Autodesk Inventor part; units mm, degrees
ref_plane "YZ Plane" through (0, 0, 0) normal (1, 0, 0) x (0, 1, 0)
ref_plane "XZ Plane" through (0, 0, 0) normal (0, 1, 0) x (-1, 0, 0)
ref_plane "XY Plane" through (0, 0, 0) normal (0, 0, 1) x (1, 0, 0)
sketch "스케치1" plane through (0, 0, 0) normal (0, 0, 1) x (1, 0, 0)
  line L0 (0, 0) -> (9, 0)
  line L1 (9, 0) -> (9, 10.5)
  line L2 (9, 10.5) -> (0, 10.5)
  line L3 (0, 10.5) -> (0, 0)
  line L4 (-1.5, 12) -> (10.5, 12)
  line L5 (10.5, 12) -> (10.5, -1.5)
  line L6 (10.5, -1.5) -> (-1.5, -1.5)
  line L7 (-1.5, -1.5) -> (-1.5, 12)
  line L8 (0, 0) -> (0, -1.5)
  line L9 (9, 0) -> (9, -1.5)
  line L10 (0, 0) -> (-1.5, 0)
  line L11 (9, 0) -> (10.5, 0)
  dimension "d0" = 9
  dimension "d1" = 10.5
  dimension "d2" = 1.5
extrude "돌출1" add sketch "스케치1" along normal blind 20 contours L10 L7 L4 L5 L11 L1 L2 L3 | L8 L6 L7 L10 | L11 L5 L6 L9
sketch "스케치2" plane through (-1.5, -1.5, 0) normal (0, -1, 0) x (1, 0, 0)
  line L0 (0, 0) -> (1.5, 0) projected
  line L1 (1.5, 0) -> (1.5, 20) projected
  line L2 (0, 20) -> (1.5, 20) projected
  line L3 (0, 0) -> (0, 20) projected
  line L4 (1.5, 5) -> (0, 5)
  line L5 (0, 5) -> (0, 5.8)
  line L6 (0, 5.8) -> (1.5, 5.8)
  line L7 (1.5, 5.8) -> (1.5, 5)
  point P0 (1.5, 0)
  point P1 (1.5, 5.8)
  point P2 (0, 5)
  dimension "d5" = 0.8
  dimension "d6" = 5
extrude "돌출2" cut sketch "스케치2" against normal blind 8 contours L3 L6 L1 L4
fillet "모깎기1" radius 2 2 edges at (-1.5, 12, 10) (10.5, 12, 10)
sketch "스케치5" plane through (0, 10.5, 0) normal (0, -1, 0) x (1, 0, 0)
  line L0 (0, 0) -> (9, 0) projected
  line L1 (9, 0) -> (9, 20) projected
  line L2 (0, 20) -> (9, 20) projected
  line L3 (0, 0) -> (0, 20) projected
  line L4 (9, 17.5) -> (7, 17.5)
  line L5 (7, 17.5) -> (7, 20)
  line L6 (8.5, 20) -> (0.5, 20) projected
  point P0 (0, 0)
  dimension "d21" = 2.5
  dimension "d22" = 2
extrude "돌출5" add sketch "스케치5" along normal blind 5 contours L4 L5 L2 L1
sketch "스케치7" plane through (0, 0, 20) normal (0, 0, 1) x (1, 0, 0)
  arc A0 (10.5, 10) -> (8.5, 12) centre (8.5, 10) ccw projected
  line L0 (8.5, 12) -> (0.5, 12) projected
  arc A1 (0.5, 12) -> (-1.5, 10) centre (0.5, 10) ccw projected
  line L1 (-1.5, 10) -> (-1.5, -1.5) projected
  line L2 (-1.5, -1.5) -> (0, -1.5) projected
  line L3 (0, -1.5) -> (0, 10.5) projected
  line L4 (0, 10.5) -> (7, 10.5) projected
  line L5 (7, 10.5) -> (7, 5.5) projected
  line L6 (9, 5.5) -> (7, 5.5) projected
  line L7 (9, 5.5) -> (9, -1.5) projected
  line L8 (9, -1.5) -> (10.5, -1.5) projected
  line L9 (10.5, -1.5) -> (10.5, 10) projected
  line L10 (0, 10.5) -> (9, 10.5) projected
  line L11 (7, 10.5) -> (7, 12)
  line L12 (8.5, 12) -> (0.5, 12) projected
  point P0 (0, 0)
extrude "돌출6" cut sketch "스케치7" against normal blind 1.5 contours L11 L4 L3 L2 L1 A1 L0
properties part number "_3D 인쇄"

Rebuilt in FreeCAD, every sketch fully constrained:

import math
import FreeCAD as App
import Part
import Sketcher
from FreeCAD import Vector
Q = App.Units.Quantity


def edges_at(feature, points):
    """Names of the edges that pass closest to the given points."""
    edges = feature.Shape.Edges
    near = lambda p: min(range(len(edges)), key=lambda i: edges[i].distToShape(Part.Vertex(*p))[0])
    return sorted({f"Edge{near(p) + 1}" for p in points})

doc = App.newDocument("Part")
body = doc.addObject("PartDesign::Body", "Body")

# Sketch on XY plane
sketch1 = body.newObject("Sketcher::SketchObject", "Sketch")
sketch1.AttachmentSupport = (doc.getObject("XY_Plane"), [""])
sketch1.MapMode = "FlatFace"
sketch1.addGeometry([
    Part.LineSegment(Vector(-1.5, 12, 0), Vector(-1.5, -1.5, 0)),  # 0
    Part.LineSegment(Vector(-1.5, -1.5, 0), Vector(0, -1.5, 0)),  # 1
    Part.LineSegment(Vector(0, -1.5, 0), Vector(0, 10.5, 0)),  # 2
    Part.LineSegment(Vector(0, 10.5, 0), Vector(9, 10.5, 0)),  # 3
    Part.LineSegment(Vector(9, 10.5, 0), Vector(9, -1.5, 0)),  # 4
    Part.LineSegment(Vector(9, -1.5, 0), Vector(10.5, -1.5, 0)),  # 5
    Part.LineSegment(Vector(10.5, -1.5, 0), Vector(10.5, 12, 0)),  # 6
    Part.LineSegment(Vector(10.5, 12, 0), Vector(-1.5, 12, 0)),  # 7
], False)
sketch1.addConstraint([
    Sketcher.Constraint("Coincident", 0, 2, 1, 1),
    Sketcher.Constraint("Coincident", 1, 2, 2, 1),
    Sketcher.Constraint("Coincident", 2, 2, 3, 1),
    Sketcher.Constraint("Coincident", 3, 2, 4, 1),
    Sketcher.Constraint("Coincident", 4, 2, 5, 1),
    Sketcher.Constraint("Coincident", 5, 2, 6, 1),
    Sketcher.Constraint("Coincident", 6, 2, 7, 1),
    Sketcher.Constraint("Coincident", 7, 2, 0, 1),
    Sketcher.Constraint("Vertical", 0),
    Sketcher.Constraint("Horizontal", 1),
    Sketcher.Constraint("Vertical", 2),
    Sketcher.Constraint("Horizontal", 3),
    Sketcher.Constraint("Vertical", 4),
    Sketcher.Constraint("Horizontal", 5),
    Sketcher.Constraint("Vertical", 6),
    Sketcher.Constraint("Horizontal", 7),
    Sketcher.Constraint("PointOnObject", 1, 2, -2),
    Sketcher.Constraint("Horizontal", 1, 2, 4, 2),
    Sketcher.Constraint("Equal", 1, 5),
    Sketcher.Constraint("Equal", 7, 2),
    Sketcher.Constraint("DistanceX", 3, 1, 3, 2, Q("9 mm")),
    Sketcher.Constraint("DistanceX", 1, 1, 1, 2, Q("1.5 mm")),
    Sketcher.Constraint("DistanceY", 0, 2, -1, 1, Q("1.5 mm")),
    Sketcher.Constraint("DistanceY", 3, 2, 6, 2, Q("1.5 mm")),
])
pad1 = body.newObject("PartDesign::Pad", "Pad")
pad1.Profile = sketch1
pad1.Length = 20

# Sketch on XZ plane
sketch2 = body.newObject("Sketcher::SketchObject", "Sketch001")
sketch2.AttachmentSupport = (doc.getObject("XZ_Plane"), [""])
sketch2.MapMode = "FlatFace"
sketch2.AttachmentOffset = App.Placement(Vector(0, 0, 1.5), App.Rotation())
sketch2.addGeometry([
    Part.LineSegment(Vector(-1.5, 5.8, 0), Vector(-1.5, 5, 0)),
    Part.LineSegment(Vector(-1.5, 5, 0), Vector(0, 5, 0)),
    Part.LineSegment(Vector(0, 5, 0), Vector(0, 5.8, 0)),
    Part.LineSegment(Vector(0, 5.8, 0), Vector(-1.5, 5.8, 0)),
], False)
sketch2.addConstraint([
    Sketcher.Constraint("Coincident", 0, 2, 1, 1),
    Sketcher.Constraint("Coincident", 1, 2, 2, 1),
    Sketcher.Constraint("Coincident", 2, 2, 3, 1),
    Sketcher.Constraint("Coincident", 3, 2, 0, 1),
    Sketcher.Constraint("Vertical", 0),
    Sketcher.Constraint("Horizontal", 1),
    Sketcher.Constraint("Vertical", 2),
    Sketcher.Constraint("Horizontal", 3),
    Sketcher.Constraint("PointOnObject", 1, 2, -2),
    Sketcher.Constraint("DistanceY", 0, 2, 0, 1, Q("0.8 mm")),
    Sketcher.Constraint("DistanceY", -1, 1, 0, 2, Q("5 mm")),
    Sketcher.Constraint("DistanceX", 1, 1, 1, 2, Q("1.5 mm")),
])
pocket1 = body.newObject("PartDesign::Pocket", "Pocket")
pocket1.Profile = sketch2
pocket1.Length = 8
doc.recompute()

fillet = body.newObject("PartDesign::Fillet", "Fillet")
fillet.Base = (pocket1, edges_at(pocket1, [(-1.5, 12, 10), (10.5, 12, 10)]))
fillet.Radius = 2

# Sketch on XZ plane
sketch3 = body.newObject("Sketcher::SketchObject", "Sketch002")
sketch3.AttachmentSupport = (doc.getObject("XZ_Plane"), [""])
sketch3.MapMode = "FlatFace"
sketch3.AttachmentOffset = App.Placement(Vector(0, 0, -10.5), App.Rotation())
sketch3.addGeometry([
    Part.LineSegment(Vector(7, 17.5, 0), Vector(9, 17.5, 0)),
    Part.LineSegment(Vector(9, 17.5, 0), Vector(9, 20, 0)),
    Part.LineSegment(Vector(9, 20, 0), Vector(7, 20, 0)),
    Part.LineSegment(Vector(7, 20, 0), Vector(7, 17.5, 0)),
], False)
sketch3.addConstraint([
    Sketcher.Constraint("Coincident", 0, 2, 1, 1),
    Sketcher.Constraint("Coincident", 1, 2, 2, 1),
    Sketcher.Constraint("Coincident", 2, 2, 3, 1),
    Sketcher.Constraint("Coincident", 3, 2, 0, 1),
    Sketcher.Constraint("Horizontal", 0),
    Sketcher.Constraint("Vertical", 1),
    Sketcher.Constraint("Horizontal", 2),
    Sketcher.Constraint("Vertical", 3),
    Sketcher.Constraint("DistanceX", 0, 1, 0, 2, Q("2 mm")),
    Sketcher.Constraint("DistanceY", 1, 1, 1, 2, Q("2.5 mm")),
    Sketcher.Constraint("DistanceX", -1, 1, 0, 2, Q("9 mm")),
    Sketcher.Constraint("DistanceY", -1, 1, 1, 2, Q("20 mm")),
])
pad2 = body.newObject("PartDesign::Pad", "Pad001")
pad2.Profile = sketch3
pad2.Length = 5

# Sketch on XY plane
sketch4 = body.newObject("Sketcher::SketchObject", "Sketch003")
sketch4.AttachmentSupport = (doc.getObject("XY_Plane"), [""])
sketch4.MapMode = "FlatFace"
sketch4.AttachmentOffset = App.Placement(Vector(0, 0, 20), App.Rotation())
sketch4.addGeometry([
    Part.LineSegment(Vector(7, 10.5, 0), Vector(7, 12, 0)),  # 0
    Part.LineSegment(Vector(7, 12, 0), Vector(0.5, 12, 0)),  # 1
    Part.ArcOfCircle(Part.Circle(Vector(0.5, 10, 0), Vector(0, 0, 1), 2), math.radians(90), math.radians(180)),  # 2
    Part.LineSegment(Vector(-1.5, 10, 0), Vector(-1.5, -1.5, 0)),  # 3
    Part.LineSegment(Vector(-1.5, -1.5, 0), Vector(0, -1.5, 0)),  # 4
    Part.LineSegment(Vector(0, -1.5, 0), Vector(0, 10.5, 0)),  # 5
    Part.LineSegment(Vector(0, 10.5, 0), Vector(7, 10.5, 0)),  # 6
], False)
sketch4.addConstraint([
    Sketcher.Constraint("Coincident", 0, 2, 1, 1),
    Sketcher.Constraint("Tangent", 1, 2, 2, 1),
    Sketcher.Constraint("Tangent", 2, 2, 3, 1),
    Sketcher.Constraint("Coincident", 3, 2, 4, 1),
    Sketcher.Constraint("Coincident", 4, 2, 5, 1),
    Sketcher.Constraint("Coincident", 5, 2, 6, 1),
    Sketcher.Constraint("Coincident", 6, 2, 0, 1),
    Sketcher.Constraint("Vertical", 0),
    Sketcher.Constraint("Horizontal", 1),
    Sketcher.Constraint("Vertical", 3),
    Sketcher.Constraint("Horizontal", 4),
    Sketcher.Constraint("Vertical", 5),
    Sketcher.Constraint("Horizontal", 6),
    Sketcher.Constraint("PointOnObject", 4, 2, -2),
    Sketcher.Constraint("Equal", 4, 0),
    Sketcher.Constraint("Radius", 2, Q("2 mm")),
    Sketcher.Constraint("DistanceX", 6, 1, 6, 2, Q("7 mm")),
    Sketcher.Constraint("DistanceY", 5, 1, 5, 2, Q("12 mm")),
    Sketcher.Constraint("DistanceX", 1, 2, 1, 1, Q("6.5 mm")),
    Sketcher.Constraint("DistanceY", -1, 1, 2, 3, Q("10 mm")),
])
pocket2 = body.newObject("PartDesign::Pocket", "Pocket001")
pocket2.Profile = sketch4
pocket2.Length = 1.5

doc.recompute()
